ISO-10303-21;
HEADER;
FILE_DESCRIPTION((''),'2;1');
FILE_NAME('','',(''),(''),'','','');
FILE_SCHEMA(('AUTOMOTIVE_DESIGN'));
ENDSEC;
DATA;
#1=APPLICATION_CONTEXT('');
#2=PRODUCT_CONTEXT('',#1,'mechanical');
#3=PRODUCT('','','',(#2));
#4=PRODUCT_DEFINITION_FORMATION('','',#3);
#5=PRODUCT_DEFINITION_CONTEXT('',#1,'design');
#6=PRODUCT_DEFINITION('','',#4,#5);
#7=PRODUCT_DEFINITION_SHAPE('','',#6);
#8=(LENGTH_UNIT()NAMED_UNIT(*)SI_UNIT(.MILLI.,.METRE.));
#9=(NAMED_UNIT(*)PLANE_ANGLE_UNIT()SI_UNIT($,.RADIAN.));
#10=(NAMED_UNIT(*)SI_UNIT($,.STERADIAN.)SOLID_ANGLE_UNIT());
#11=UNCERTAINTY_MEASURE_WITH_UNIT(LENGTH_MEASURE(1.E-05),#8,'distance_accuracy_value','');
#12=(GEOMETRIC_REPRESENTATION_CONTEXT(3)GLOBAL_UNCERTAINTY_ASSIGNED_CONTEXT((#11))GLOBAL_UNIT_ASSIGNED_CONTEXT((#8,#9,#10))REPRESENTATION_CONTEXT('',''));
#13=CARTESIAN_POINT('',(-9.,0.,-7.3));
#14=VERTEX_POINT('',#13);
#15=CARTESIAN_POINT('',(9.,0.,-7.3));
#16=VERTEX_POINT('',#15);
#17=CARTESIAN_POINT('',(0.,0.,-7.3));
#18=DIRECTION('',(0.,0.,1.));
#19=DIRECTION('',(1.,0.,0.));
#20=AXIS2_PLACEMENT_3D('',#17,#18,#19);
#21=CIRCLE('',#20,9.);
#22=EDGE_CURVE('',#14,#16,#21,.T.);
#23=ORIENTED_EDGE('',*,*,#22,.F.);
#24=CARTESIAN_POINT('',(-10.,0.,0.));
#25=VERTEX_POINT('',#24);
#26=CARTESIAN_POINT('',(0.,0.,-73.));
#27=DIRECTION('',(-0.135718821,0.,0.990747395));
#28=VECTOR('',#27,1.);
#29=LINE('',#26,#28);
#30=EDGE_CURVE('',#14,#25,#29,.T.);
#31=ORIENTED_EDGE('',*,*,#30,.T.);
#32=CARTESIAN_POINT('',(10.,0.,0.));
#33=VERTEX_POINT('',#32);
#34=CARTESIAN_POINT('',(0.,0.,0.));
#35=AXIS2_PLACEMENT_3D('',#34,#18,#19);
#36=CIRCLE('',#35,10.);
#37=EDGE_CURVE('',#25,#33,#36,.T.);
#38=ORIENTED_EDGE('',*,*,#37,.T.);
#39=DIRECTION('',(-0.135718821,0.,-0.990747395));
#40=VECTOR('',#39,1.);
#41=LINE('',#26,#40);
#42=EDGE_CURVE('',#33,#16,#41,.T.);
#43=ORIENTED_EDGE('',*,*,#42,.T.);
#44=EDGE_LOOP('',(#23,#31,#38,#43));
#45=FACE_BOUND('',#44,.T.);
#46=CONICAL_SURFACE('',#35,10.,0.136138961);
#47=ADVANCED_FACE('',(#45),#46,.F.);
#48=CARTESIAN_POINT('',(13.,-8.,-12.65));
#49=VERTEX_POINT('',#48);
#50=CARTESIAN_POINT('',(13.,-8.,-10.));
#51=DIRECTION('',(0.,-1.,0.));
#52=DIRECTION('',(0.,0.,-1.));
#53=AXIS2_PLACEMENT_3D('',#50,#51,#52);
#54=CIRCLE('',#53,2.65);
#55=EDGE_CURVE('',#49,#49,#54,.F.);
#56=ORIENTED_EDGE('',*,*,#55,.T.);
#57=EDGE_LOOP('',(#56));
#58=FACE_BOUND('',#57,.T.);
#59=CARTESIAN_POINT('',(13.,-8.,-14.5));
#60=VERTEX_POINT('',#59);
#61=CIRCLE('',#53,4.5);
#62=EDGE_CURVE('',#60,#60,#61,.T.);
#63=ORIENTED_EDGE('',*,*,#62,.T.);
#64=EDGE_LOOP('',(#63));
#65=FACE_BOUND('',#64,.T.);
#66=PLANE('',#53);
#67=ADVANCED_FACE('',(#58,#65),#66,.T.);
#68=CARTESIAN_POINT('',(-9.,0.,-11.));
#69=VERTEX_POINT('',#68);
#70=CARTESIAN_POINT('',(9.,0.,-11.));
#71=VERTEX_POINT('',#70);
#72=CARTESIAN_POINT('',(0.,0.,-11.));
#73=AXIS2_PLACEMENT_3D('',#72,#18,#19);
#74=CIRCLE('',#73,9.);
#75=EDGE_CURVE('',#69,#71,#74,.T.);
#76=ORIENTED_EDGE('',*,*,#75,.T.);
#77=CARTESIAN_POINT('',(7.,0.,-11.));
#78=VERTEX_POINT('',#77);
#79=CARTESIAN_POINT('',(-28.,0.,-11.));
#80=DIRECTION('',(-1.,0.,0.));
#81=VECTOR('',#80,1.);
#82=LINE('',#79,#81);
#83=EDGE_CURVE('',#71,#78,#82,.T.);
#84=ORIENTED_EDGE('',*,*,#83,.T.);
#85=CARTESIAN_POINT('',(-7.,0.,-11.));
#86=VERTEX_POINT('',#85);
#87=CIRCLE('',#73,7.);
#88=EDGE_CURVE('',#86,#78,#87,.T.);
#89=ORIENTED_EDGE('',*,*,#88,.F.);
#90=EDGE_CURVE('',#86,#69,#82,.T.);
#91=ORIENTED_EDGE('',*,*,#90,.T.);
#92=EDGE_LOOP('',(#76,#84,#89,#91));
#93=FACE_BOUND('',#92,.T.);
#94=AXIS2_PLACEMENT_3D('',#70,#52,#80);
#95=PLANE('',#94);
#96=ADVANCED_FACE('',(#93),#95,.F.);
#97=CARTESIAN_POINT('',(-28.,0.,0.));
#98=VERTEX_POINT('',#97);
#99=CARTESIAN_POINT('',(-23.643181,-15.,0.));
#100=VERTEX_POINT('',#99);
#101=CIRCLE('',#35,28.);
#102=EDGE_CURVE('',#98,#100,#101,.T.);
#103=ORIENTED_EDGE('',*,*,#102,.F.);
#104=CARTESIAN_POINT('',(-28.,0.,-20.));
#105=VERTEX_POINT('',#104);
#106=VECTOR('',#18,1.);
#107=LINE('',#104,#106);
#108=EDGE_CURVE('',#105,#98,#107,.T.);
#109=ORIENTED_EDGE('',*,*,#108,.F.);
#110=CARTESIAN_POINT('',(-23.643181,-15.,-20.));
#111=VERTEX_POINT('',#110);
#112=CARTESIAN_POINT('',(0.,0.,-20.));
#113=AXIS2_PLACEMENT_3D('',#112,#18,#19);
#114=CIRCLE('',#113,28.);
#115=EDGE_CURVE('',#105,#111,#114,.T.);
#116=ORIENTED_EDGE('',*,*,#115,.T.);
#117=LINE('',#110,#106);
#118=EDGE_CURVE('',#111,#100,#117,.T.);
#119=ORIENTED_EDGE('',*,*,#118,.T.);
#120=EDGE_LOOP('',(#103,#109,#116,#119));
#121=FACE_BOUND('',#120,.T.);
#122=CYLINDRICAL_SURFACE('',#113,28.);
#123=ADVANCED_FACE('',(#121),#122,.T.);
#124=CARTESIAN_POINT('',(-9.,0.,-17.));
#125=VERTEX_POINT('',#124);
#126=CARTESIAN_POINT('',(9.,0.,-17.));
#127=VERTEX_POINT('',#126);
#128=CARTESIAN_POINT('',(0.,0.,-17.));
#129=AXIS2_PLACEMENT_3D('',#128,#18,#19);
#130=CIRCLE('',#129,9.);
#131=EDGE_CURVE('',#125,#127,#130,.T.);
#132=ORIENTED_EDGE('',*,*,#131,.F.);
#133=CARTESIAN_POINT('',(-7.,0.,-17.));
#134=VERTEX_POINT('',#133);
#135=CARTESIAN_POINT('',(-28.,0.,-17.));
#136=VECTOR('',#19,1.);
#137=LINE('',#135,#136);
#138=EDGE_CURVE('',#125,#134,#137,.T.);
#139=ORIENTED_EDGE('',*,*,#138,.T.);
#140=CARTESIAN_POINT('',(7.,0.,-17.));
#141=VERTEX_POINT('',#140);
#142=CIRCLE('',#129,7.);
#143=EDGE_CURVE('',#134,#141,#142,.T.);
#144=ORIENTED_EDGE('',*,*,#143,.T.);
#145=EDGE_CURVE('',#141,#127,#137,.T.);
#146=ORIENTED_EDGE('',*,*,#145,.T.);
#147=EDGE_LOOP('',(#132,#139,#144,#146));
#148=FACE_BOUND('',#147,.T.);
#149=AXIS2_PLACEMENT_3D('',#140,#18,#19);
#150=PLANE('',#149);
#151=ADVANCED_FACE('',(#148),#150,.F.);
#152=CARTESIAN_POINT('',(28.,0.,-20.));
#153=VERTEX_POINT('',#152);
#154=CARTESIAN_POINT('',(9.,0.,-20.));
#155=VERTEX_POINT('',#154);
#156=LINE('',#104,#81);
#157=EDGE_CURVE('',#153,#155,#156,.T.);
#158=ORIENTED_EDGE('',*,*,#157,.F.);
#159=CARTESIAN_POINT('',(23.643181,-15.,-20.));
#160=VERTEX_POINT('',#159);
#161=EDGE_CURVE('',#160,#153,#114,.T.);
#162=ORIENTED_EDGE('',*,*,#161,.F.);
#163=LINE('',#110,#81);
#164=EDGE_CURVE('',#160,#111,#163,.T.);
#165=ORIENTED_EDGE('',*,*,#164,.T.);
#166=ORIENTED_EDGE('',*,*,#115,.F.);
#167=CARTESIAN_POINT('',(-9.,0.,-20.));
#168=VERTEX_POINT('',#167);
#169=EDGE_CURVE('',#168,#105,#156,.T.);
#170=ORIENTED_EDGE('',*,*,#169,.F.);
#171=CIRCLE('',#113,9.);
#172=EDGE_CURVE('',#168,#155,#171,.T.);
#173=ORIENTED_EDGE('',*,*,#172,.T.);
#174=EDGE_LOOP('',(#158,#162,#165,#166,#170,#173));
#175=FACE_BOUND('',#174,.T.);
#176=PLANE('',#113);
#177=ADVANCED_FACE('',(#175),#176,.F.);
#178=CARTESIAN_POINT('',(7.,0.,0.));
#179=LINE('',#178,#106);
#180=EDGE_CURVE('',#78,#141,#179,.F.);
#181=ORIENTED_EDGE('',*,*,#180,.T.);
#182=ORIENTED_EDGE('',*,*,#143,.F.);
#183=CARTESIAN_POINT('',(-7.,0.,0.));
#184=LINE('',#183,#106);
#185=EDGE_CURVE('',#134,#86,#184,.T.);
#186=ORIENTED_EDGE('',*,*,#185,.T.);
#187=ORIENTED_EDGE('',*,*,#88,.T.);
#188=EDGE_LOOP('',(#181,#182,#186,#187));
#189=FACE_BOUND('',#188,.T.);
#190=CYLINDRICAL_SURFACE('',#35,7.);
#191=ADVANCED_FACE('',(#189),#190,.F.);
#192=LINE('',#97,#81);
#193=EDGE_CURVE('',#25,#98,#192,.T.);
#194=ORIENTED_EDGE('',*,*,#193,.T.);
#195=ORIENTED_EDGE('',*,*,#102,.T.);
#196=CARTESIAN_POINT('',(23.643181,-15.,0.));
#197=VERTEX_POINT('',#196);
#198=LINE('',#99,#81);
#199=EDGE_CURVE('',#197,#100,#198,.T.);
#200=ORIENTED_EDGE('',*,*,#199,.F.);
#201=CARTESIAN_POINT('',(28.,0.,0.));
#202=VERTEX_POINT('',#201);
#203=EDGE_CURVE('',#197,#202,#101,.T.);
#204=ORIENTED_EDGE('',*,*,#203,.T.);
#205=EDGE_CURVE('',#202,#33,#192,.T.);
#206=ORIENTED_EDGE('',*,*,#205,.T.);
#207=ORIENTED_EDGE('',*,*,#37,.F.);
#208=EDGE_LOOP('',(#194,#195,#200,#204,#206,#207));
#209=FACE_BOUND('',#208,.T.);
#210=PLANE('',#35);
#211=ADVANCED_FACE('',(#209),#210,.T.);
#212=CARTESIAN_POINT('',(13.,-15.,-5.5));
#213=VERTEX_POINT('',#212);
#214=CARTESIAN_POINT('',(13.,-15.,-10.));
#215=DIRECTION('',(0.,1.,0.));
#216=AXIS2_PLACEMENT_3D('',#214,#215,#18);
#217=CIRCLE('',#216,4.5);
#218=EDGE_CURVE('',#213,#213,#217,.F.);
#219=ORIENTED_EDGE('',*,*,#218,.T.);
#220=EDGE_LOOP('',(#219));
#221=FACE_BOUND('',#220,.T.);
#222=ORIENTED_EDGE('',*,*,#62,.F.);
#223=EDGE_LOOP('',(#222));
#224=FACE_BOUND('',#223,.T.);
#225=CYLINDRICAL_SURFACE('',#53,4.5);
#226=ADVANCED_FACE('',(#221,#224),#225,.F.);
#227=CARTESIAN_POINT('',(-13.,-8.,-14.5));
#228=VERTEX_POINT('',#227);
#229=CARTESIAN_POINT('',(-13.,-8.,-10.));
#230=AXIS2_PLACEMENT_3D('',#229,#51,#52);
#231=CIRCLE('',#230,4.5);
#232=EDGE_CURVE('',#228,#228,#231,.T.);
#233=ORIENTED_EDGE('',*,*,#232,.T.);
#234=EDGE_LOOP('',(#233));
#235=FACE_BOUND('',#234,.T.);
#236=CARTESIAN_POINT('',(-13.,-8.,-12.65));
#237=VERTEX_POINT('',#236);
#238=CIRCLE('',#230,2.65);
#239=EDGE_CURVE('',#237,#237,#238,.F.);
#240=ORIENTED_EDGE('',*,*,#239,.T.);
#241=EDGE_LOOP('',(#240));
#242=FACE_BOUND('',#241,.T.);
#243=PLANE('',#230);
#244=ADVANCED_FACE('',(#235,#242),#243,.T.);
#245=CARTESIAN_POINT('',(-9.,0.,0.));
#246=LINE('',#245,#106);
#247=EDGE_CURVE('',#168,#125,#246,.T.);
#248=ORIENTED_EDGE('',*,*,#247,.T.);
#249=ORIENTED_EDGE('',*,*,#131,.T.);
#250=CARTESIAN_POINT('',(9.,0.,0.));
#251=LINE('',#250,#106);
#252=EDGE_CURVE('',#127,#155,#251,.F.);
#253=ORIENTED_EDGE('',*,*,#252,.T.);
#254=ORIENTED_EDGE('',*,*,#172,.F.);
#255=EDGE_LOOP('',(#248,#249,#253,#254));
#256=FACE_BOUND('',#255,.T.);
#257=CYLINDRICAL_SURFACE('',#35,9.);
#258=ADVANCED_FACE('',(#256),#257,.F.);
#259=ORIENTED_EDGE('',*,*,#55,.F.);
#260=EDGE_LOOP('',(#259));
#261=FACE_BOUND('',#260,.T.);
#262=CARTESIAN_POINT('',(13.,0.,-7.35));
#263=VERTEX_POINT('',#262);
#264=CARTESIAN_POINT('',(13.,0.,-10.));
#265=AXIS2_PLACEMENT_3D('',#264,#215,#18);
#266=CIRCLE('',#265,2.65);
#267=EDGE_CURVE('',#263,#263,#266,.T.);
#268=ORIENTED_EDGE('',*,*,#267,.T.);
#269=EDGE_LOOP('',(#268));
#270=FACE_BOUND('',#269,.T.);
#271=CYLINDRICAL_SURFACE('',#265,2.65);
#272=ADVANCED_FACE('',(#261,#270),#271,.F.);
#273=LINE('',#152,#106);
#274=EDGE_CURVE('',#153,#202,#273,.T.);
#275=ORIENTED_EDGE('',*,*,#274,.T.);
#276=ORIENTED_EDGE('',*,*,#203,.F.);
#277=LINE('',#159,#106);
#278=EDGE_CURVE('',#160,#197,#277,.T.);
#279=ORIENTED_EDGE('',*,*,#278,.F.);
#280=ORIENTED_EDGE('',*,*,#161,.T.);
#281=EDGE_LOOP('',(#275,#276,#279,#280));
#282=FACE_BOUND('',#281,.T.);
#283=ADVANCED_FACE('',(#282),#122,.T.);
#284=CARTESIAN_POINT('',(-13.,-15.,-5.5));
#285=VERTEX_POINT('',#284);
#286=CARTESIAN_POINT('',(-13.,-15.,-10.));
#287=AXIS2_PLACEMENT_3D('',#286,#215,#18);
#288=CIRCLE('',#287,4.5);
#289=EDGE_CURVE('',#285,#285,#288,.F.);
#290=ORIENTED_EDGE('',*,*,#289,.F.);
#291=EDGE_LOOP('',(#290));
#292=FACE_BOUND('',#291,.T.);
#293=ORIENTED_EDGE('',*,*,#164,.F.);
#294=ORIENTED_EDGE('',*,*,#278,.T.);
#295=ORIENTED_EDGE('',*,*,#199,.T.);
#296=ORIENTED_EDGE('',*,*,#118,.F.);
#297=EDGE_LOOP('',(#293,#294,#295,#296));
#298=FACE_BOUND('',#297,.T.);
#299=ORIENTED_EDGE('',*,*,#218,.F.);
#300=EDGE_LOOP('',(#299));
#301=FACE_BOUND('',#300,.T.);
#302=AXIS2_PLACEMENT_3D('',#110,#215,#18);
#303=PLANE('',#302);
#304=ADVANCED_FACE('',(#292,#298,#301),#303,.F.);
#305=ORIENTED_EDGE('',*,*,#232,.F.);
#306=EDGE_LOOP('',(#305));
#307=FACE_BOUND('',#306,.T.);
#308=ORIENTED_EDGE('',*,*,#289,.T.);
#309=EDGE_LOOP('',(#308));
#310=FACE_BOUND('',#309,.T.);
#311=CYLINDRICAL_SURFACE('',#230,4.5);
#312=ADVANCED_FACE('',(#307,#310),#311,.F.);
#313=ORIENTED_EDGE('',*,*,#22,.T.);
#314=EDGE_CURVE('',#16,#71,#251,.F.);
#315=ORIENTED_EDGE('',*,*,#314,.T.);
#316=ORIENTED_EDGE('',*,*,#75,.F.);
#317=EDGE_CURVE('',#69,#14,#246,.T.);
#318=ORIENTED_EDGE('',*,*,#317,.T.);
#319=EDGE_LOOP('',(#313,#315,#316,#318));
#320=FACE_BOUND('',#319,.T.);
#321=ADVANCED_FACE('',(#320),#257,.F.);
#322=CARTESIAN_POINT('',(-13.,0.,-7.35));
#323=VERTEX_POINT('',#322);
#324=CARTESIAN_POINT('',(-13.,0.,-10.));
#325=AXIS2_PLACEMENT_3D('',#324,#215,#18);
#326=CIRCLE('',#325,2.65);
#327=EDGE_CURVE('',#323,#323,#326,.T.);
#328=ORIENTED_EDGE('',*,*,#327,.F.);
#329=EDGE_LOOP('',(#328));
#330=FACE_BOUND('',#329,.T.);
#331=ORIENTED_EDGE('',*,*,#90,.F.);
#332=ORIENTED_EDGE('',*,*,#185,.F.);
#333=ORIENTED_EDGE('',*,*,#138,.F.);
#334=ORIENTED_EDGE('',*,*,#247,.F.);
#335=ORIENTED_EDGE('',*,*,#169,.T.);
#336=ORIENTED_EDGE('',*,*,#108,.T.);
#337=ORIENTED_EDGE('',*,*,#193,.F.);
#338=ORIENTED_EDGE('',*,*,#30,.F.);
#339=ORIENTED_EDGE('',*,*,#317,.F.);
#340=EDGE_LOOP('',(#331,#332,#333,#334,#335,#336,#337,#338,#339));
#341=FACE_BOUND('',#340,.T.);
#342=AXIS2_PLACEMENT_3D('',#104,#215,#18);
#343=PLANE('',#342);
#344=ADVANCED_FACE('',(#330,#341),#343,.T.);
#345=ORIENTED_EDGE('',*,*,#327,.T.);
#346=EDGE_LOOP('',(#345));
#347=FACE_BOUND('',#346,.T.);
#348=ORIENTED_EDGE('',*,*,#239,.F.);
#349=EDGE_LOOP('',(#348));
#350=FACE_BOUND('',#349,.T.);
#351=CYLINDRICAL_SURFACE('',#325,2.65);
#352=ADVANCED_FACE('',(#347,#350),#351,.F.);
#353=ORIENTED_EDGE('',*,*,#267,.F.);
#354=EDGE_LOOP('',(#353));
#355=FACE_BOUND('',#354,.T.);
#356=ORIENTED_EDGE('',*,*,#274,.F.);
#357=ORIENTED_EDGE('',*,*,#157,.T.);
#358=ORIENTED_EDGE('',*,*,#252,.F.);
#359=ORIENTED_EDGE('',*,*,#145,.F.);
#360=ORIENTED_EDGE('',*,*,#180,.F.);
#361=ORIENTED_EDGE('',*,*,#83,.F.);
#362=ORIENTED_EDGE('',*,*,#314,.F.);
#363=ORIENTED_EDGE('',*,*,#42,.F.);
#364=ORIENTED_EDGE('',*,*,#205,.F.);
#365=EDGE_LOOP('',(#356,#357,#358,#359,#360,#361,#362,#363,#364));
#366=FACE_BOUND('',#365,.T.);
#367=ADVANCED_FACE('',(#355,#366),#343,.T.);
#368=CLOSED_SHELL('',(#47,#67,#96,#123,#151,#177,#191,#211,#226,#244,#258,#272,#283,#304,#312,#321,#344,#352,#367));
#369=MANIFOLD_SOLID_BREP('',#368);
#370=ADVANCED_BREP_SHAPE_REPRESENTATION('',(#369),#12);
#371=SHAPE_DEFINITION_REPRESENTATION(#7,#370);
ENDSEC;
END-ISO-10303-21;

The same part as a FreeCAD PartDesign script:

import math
import FreeCAD as App
import Part
import Sketcher


def add_polygon(sketch, points):
    """Adds a closed chain of lines whose ends are joined by coincident constraints."""
    first, n = sketch.GeometryCount, len(points)
    for a, b in zip(points, points[1:] + points[:1]):
        sketch.addGeometry(Part.LineSegment(App.Vector(*a, 0), App.Vector(*b, 0)), False)
    for i in range(n):
        sketch.addConstraint(Sketcher.Constraint("Coincident", first + i, 2, first + (i + 1) % n, 1))

doc = App.newDocument("Part")
body = doc.addObject("PartDesign::Body", "Body")

# Sketch on XY plane
sketch1 = body.newObject("Sketcher::SketchObject", "Sketch")
sketch1.AttachmentSupport = (doc.getObject("XY_Plane"), [""])
sketch1.MapMode = "FlatFace"
sketch1.addGeometry([
    Part.LineSegment(App.Vector(28, 0, 0), App.Vector(-28, 0, 0)),
    Part.ArcOfCircle(Part.Circle(App.Vector(0, 0, 0), App.Vector(0, 0, 1), 28), math.radians(180), math.radians(360)),
], False)
sketch1.addConstraint([
    Sketcher.Constraint("Coincident", 0, 1, 1, 2),
    Sketcher.Constraint("Coincident", 1, 1, 0, 2),
    Sketcher.Constraint("Horizontal", 0),
    Sketcher.Constraint("Coincident", 1, 3, -1, 1),
    Sketcher.Constraint("PointOnObject", 0, 1, -1),
    Sketcher.Constraint("Radius", 1, 28.0),
])
pad1 = body.newObject("PartDesign::Pad", "Pad")
pad1.Profile = sketch1
pad1.Length = 20
pad1.Reversed = True

# Sketch on XZ plane
sketch2 = body.newObject("Sketcher::SketchObject", "Sketch001")
sketch2.AttachmentSupport = (doc.getObject("XZ_Plane"), [""])
sketch2.MapMode = "FlatFace"
add_polygon(sketch2, [(12.2, -24), (12.2, -25), (0, -25), (0, 0), (10, 0), (9, -7.3), (9, -11), (7, -11), (7, -17), (9, -17), (9, -20), (7.2, -20), (7.2, -21.5), (9, -21.5), (9, -22.5), (7.2, -22.5), (7.2, -24)])  # lines 0-16
sketch2.addConstraint([
    Sketcher.Constraint("Vertical", 0),
    Sketcher.Constraint("Horizontal", 1),
    Sketcher.Constraint("Vertical", 2),
    Sketcher.Constraint("Horizontal", 3),
    Sketcher.Constraint("Vertical", 5),
    Sketcher.Constraint("Horizontal", 6),
    Sketcher.Constraint("Vertical", 7),
    Sketcher.Constraint("Horizontal", 8),
    Sketcher.Constraint("Vertical", 9),
    Sketcher.Constraint("Horizontal", 10),
    Sketcher.Constraint("Vertical", 11),
    Sketcher.Constraint("Horizontal", 12),
    Sketcher.Constraint("Vertical", 13),
    Sketcher.Constraint("Horizontal", 14),
    Sketcher.Constraint("Vertical", 15),
    Sketcher.Constraint("Horizontal", 16),
    Sketcher.Constraint("Coincident", 2, 2, -1, 1),
    Sketcher.Constraint("Vertical", 5, 2, 8, 2),
    Sketcher.Constraint("Vertical", 9, 2, 12, 2),
    Sketcher.Constraint("Vertical", 11, 2, 14, 2),
    Sketcher.Constraint("Equal", 0, 13),
    Sketcher.Constraint("Equal", 11, 15),
    Sketcher.Constraint("DistanceX", 3, 1, 3, 2, 10.0),
    Sketcher.Constraint("DistanceX", 6, 2, 6, 1, 2.0),
    Sketcher.Constraint("DistanceY", 0, 2, 0, 1, 1.0),
    Sketcher.Constraint("DistanceY", 2, 1, 2, 2, 25.0),
    Sketcher.Constraint("DistanceY", 7, 2, 7, 1, 6.0),
    Sketcher.Constraint("DistanceY", 9, 2, 9, 1, 3.0),
    Sketcher.Constraint("DistanceX", 16, 1, 16, 2, 4.9),
    Sketcher.Constraint("DistanceY", 5, 2, 5, 1, 3.7),
    Sketcher.Constraint("DistanceY", 11, 2, 11, 1, 1.5),
    Sketcher.Constraint("DistanceX", -1, 1, 4, 2, 9.0),
    Sketcher.Constraint("DistanceX", 1, 2, 1, 1, 12.15),
])
groove = body.newObject("PartDesign::Groove", "Groove")
groove.Profile = sketch2
groove.ReferenceAxis = (sketch2, ["V_Axis"])
groove.Angle = 360

# Sketch on XZ plane
sketch3 = body.newObject("Sketcher::SketchObject", "Sketch002")
sketch3.AttachmentSupport = (doc.getObject("XZ_Plane"), [""])
sketch3.MapMode = "FlatFace"
sketch3.addGeometry([
    Part.Circle(App.Vector(-13, -10, 0), App.Vector(0, 0, 1), 2.6),
    Part.Circle(App.Vector(13, -10, 0), App.Vector(0, 0, 1), 2.6),
], False)
sketch3.addConstraint([
    Sketcher.Constraint("Equal", 0, 1),
    Sketcher.Constraint("Symmetric", 0, 3, 1, 3, -2),
    Sketcher.Constraint("Diameter", 0, 5.3),
    Sketcher.Constraint("DistanceX", 0, 3, -1, 1, 13.0),
    Sketcher.Constraint("DistanceY", 0, 3, -1, 1, 10.0),
])
doc.recompute()
hole = body.newObject("PartDesign::Hole", "Hole")
hole.Profile = sketch3
hole.ThreadType = "None"
hole.Diameter = 5.3
hole.DepthType = "Dimension"
hole.Depth = 45
hole.DrillPoint = "Angled"
hole.DrillPointAngle = 118
hole.Reversed = True

# Sketch on XZ plane
sketch4 = body.newObject("Sketcher::SketchObject", "Sketch003")
sketch4.AttachmentSupport = (doc.getObject("XZ_Plane"), [""])
sketch4.MapMode = "FlatFace"
sketch4.AttachmentOffset = App.Placement(App.Vector(0, 0, 28), App.Rotation())
sketch4.addGeometry([
    Part.Circle(App.Vector(-13, -10, 0), App.Vector(0, 0, 1), 4.5),
    Part.Circle(App.Vector(13, -10, 0), App.Vector(0, 0, 1), 4.5),
], False)
sketch4.addConstraint([
    Sketcher.Constraint("Equal", 0, 1),
    Sketcher.Constraint("Symmetric", 0, 3, 1, 3, -2),
    Sketcher.Constraint("Diameter", 0, 9.0),
    Sketcher.Constraint("DistanceX", 0, 3, -1, 1, 13.0),
    Sketcher.Constraint("DistanceY", 0, 3, -1, 1, 10.0),
])
pocket1 = body.newObject("PartDesign::Pocket", "Pocket")
pocket1.Profile = sketch4
pocket1.Length = 20

# Sketch on XY plane
sketch5 = body.newObject("Sketcher::SketchObject", "Sketch004")
sketch5.AttachmentSupport = (doc.getObject("XY_Plane"), [""])
sketch5.MapMode = "FlatFace"
sketch5.addGeometry([
    Part.LineSegment(App.Vector(24, -15, 0), App.Vector(-24, -15, 0)),
    Part.ArcOfCircle(Part.Circle(App.Vector(0, 0, 0), App.Vector(0, 0, 1), 28), math.radians(-148), math.radians(-32)),
], False)
sketch5.addConstraint([
    Sketcher.Constraint("Coincident", 0, 1, 1, 2),
    Sketcher.Constraint("Coincident", 1, 1, 0, 2),
    Sketcher.Constraint("Horizontal", 0),
    Sketcher.Constraint("Coincident", 1, 3, -1, 1),
    Sketcher.Constraint("Radius", 1, 28.0),
    Sketcher.Constraint("DistanceY", 0, 1, -1, 1, 15.0),
])
pocket2 = body.newObject("PartDesign::Pocket", "Pocket001")
pocket2.Profile = sketch5
pocket2.Length = 20

doc.recompute()
